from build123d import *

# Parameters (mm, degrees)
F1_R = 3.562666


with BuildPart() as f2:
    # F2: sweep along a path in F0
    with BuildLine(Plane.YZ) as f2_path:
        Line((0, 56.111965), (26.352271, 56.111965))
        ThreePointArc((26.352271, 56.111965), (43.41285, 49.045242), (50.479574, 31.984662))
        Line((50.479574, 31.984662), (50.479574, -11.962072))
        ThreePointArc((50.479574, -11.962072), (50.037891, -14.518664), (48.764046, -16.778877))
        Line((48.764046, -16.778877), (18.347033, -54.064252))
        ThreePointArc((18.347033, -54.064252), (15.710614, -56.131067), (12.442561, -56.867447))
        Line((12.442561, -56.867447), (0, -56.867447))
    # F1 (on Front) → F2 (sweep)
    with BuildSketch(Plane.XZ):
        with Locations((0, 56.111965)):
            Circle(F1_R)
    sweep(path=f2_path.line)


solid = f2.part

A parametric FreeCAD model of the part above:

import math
import FreeCAD as App
import Part
import Sketcher

V = App.Vector
Q = App.Units.Quantity

doc = App.newDocument("Part")
body = doc.addObject("PartDesign::Body", "Body")

sketch1 = body.newObject("Sketcher::SketchObject", "Sketch")
sketch1.AttachmentSupport = (doc.getObject("XZ_Plane"), [""])
sketch1.MapMode = "FlatFace"
sketch1.addGeometry(Part.Circle(V(0, 56.111965, 0), V(0, 0, 1), 3.562666), False)
sketch1.addConstraint(Sketcher.Constraint("PointOnObject", 0, 3, -2))
sketch1.addConstraint(Sketcher.Constraint("Diameter", 0, 7.125332))
sketch1.addConstraint(Sketcher.Constraint("DistanceY", -1, 1, 0, 3, 56.111965))

sketch2 = body.newObject("Sketcher::SketchObject", "Sketch001")
sketch2.AttachmentSupport = (doc.getObject("YZ_Plane"), [""])
sketch2.MapMode = "FlatFace"
sketch2.addGeometry(Part.LineSegment(V(0, 56.111965, 0), V(26.352271, 56.111965, 0)), False)
sketch2.addGeometry(Part.ArcOfCircle(Part.Circle(V(26.352271, 31.984662, 0), V(0, 0, 1), 24.127303), math.radians(0.000001), math.radians(89.999999)), False)
sketch2.addGeometry(Part.LineSegment(V(50.479574, 31.984662, 0), V(50.479574, -11.962072, 0)), False)
sketch2.addGeometry(Part.ArcOfCircle(Part.Circle(V(42.859571, -11.962071, 0), V(0, 0, 1), 7.620003), math.radians(-39.20719), math.radians(-0.000007)), False)
sketch2.addGeometry(Part.LineSegment(V(48.764046, -16.778877, 0), V(18.347033, -54.064252, 0)), False)
sketch2.addGeometry(Part.ArcOfCircle(Part.Circle(V(12.442559, -49.247444, 0), V(0, 0, 1), 7.620003), math.radians(-89.999988), math.radians(-39.207209)), False)
sketch2.addGeometry(Part.LineSegment(V(12.442561, -56.867447, 0), V(0, -56.867447, 0)), False)
sketch2.addConstraint(Sketcher.Constraint("Tangent", 0, 2, 1, 2))
sketch2.addConstraint(Sketcher.Constraint("Tangent", 1, 1, 2, 1))
sketch2.addConstraint(Sketcher.Constraint("Tangent", 2, 2, 3, 2))
sketch2.addConstraint(Sketcher.Constraint("Tangent", 3, 1, 4, 1))
sketch2.addConstraint(Sketcher.Constraint("Tangent", 4, 2, 5, 2))
sketch2.addConstraint(Sketcher.Constraint("Tangent", 5, 1, 6, 1))
sketch2.addConstraint(Sketcher.Constraint("Horizontal", 0))
sketch2.addConstraint(Sketcher.Constraint("Vertical", 2))
sketch2.addConstraint(Sketcher.Constraint("Horizontal", 6))
sketch2.addConstraint(Sketcher.Constraint("Equal", 3, 5))
sketch2.addConstraint(Sketcher.Constraint("PointOnObject", 0, 1, -2))
sketch2.addConstraint(Sketcher.Constraint("PointOnObject", 6, 2, -2))
sketch2.addConstraint(Sketcher.Constraint("Radius", 3, Q("0.3000001 in")))
sketch2.addConstraint(Sketcher.Constraint("Radius", 1, 24.127303))
sketch2.addConstraint(Sketcher.Constraint("DistanceX", 0, 1, 0, 2, 26.352271))
sketch2.addConstraint(Sketcher.Constraint("DistanceX", 6, 2, 6, 1, 12.442561))
sketch2.addConstraint(Sketcher.Constraint("Distance", 4, 48.11854))
sketch2.addConstraint(Sketcher.Constraint("DistanceY", 2, 2, 2, 1, 43.946734))
sketch2.addConstraint(Sketcher.Constraint("DistanceY", -1, 1, 1, 3, 31.984662))
doc.recompute()

additivepipe = body.newObject("PartDesign::AdditivePipe", "AdditivePipe")
additivepipe.Profile = sketch1
additivepipe.Spine = (sketch2, ["Edge1", "Edge2", "Edge3", "Edge4", "Edge5", "Edge6", "Edge7"])

doc.recompute()
